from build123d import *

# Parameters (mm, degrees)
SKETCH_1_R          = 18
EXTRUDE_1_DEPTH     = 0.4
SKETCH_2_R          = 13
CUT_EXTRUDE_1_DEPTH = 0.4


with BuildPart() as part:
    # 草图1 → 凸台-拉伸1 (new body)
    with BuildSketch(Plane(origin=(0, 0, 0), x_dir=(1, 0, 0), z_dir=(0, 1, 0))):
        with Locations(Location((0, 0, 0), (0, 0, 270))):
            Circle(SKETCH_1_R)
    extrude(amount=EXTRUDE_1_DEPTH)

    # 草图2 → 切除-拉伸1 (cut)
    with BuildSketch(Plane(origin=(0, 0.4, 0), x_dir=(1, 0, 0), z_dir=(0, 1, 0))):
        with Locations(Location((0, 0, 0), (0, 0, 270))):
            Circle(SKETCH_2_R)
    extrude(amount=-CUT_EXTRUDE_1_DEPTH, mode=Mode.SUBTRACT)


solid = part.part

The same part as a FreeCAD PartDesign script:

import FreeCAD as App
import Part
import Sketcher

V = App.Vector

doc = App.newDocument("Part")
params = doc.addObject("Spreadsheet::Sheet", "Params")
for row, (alias, value) in enumerate([
    ("sketch1_diameter", "36 mm"),
    ("pad1_length", "0.4 mm"),
    ("sketch2_diameter", "26 mm"),
    ("pocket1_length", "0.4 mm"),
], start=1):
    params.set(f"A{row}", alias)
    params.set(f"B{row}", "=" + value)
    params.setAlias(f"B{row}", alias)

body = doc.addObject("PartDesign::Body", "Body")

sketch1 = doc.addObject("Sketcher::SketchObject", "Sketch")
body.addObject(sketch1)
sketch1.AttachmentSupport = (doc.XZ_Plane, [""])
sketch1.MapMode = "FlatFace"
sketch1.addGeometry(Part.Circle(V(0, 0, 0), V(0, 0, 1), 18), False)
sketch1.addConstraint([
    Sketcher.Constraint("Coincident", 0, 3, -1, 1),
    Sketcher.Constraint("Diameter", 0, 36.0),
])
sketch1.setExpression("Constraints[1]", "Params.sketch1_diameter")
pad1 = doc.addObject("PartDesign::Pad", "Pad")
body.addObject(pad1)
pad1.Profile = sketch1
pad1.setExpression("Length", "Params.pad1_length")
pad1.Reversed = True

sketch2 = doc.addObject("Sketcher::SketchObject", "Sketch001")
body.addObject(sketch2)
sketch2.AttachmentSupport = (doc.XZ_Plane, [""])
sketch2.MapMode = "FlatFace"
sketch2.AttachmentOffset = App.Placement(V(0, 0, -0.4), App.Rotation())
sketch2.addGeometry(Part.Circle(V(0, 0, 0), V(0, 0, 1), 13), False)
sketch2.addConstraint([
    Sketcher.Constraint("Coincident", 0, 3, -1, 1),
    Sketcher.Constraint("Diameter", 0, 26.0),
])
sketch2.setExpression("Constraints[1]", "Params.sketch2_diameter")
pocket1 = doc.addObject("PartDesign::Pocket", "Pocket")
body.addObject(pocket1)
pocket1.Profile = sketch2
pocket1.setExpression("Length", "Params.pocket1_length")
pocket1.Reversed = True

doc.recompute()
